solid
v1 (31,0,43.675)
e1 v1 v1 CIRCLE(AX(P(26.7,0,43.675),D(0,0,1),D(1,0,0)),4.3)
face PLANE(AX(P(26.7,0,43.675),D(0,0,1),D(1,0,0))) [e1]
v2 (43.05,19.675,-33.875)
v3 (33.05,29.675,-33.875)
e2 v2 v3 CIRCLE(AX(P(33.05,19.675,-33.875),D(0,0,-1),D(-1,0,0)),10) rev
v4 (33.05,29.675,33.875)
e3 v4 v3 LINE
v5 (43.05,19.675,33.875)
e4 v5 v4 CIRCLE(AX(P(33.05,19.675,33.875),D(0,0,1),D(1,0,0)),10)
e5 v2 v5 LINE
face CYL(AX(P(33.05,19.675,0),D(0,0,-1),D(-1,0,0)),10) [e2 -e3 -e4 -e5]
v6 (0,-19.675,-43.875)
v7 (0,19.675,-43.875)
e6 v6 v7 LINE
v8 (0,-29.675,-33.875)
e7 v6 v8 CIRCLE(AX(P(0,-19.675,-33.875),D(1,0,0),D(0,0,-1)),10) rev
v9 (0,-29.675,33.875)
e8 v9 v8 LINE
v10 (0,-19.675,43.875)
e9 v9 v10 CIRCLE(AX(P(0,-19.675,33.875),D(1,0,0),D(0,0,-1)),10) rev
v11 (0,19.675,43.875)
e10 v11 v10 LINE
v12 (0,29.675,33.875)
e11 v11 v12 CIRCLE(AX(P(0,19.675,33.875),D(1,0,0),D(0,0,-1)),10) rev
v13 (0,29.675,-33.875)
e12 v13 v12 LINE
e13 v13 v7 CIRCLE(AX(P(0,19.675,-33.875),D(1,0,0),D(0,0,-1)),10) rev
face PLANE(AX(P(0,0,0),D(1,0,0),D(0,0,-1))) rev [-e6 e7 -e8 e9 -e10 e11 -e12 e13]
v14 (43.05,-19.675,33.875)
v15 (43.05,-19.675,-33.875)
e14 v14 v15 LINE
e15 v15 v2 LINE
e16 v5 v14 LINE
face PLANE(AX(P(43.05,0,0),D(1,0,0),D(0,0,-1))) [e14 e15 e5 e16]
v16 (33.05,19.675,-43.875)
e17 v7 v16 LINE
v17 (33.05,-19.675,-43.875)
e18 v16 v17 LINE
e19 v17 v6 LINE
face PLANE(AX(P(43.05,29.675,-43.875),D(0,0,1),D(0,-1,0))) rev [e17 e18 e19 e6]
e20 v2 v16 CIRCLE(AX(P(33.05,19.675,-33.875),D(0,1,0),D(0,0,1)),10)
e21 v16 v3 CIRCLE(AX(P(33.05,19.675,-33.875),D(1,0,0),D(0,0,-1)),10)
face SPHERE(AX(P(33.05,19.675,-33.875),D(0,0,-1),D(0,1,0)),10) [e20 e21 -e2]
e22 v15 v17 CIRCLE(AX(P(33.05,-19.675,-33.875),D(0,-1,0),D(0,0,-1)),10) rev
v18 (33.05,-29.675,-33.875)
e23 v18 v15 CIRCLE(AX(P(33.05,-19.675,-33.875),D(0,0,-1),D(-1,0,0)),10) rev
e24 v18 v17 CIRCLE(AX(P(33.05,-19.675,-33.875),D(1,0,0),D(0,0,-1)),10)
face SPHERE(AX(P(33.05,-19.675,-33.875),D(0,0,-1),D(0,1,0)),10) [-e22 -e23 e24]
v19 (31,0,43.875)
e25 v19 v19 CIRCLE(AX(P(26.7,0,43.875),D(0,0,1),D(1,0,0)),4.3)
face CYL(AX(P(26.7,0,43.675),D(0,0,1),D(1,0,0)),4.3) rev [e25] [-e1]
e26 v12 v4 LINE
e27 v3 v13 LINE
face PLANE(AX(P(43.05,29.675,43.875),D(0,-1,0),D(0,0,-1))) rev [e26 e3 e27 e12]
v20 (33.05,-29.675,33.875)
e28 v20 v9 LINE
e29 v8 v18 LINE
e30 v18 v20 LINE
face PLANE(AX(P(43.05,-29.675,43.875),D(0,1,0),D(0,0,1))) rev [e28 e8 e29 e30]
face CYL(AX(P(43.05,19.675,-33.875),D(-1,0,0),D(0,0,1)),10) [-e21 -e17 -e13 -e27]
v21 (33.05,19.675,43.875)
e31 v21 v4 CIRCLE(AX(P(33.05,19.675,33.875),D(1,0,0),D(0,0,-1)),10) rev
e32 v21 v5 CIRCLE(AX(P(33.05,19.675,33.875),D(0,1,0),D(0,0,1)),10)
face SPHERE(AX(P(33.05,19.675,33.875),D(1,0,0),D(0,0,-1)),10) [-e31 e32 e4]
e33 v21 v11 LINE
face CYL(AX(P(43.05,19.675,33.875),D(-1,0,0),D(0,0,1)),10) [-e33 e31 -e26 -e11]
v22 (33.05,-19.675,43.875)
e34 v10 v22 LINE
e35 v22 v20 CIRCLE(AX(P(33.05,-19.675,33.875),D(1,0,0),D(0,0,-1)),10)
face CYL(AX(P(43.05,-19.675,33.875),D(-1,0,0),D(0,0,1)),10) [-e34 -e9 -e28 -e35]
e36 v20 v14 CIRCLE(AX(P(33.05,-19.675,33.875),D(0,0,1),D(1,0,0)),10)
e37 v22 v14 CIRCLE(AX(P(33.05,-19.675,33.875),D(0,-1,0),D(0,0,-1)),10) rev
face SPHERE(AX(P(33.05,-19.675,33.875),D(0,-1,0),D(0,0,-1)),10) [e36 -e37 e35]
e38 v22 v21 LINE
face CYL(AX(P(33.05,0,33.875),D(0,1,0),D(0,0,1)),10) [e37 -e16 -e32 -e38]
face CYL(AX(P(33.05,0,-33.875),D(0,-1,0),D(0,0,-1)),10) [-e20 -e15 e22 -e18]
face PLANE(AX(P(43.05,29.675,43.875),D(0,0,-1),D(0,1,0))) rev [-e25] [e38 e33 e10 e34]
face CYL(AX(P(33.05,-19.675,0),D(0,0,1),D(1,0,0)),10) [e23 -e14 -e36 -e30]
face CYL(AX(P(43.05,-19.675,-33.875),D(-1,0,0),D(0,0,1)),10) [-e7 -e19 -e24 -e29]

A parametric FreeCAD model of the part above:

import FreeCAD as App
import Part
import Sketcher
from FreeCAD import Vector


def edges_at(feature, points):
    """Names of the edges that pass closest to the given points."""
    edges = feature.Shape.Edges
    near = lambda p: min(range(len(edges)), key=lambda i: edges[i].distToShape(Part.Vertex(*p))[0])
    return sorted({f"Edge{near(p) + 1}" for p in points})


def add_polygon(sketch, points):
    """Adds a closed chain of lines whose ends are joined by coincident constraints."""
    first, n = sketch.GeometryCount, len(points)
    for a, b in zip(points, points[1:] + points[:1]):
        sketch.addGeometry(Part.LineSegment(App.Vector(*a, 0), App.Vector(*b, 0)), False)
    for i in range(n):
        sketch.addConstraint(Sketcher.Constraint("Coincident", first + i, 2, first + (i + 1) % n, 1))

doc = App.newDocument("Part")
body = doc.addObject("PartDesign::Body", "Body")

sketch1 = body.newObject("Sketcher::SketchObject", "Sketch")
sketch1.AttachmentSupport = (doc.getObject("YZ_Plane"), [""])
sketch1.MapMode = "FlatFace"
add_polygon(sketch1, [(30, 44), (-30, 44), (-30, -44), (30, -44)])
sketch1.addConstraint([
    Sketcher.Constraint("Horizontal", 0),
    Sketcher.Constraint("Vertical", 1),
    Sketcher.Constraint("Horizontal", 2),
    Sketcher.Constraint("Vertical", 3),
    Sketcher.Constraint("Symmetric", 0, 2, 2, 2, -1, 1),
    Sketcher.Constraint("DistanceX", 0, 2, 0, 1, 59.35),
    Sketcher.Constraint("DistanceY", 1, 2, 1, 1, 87.75),
])
pad1 = body.newObject("PartDesign::Pad", "Pad")
pad1.Profile = sketch1
pad1.Length = 43.05
doc.recompute()

fillet = body.newObject("PartDesign::Fillet", "Fillet")
fillet.Base = (pad1, edges_at(pad1, [
    (43.05, 0, 43.875),
    (43.05, -29.675, 0),
    (43.05, 0, -43.875),
    (21.525, -29.675, -43.875),
    (21.525, -29.675, 43.875),
    (21.525, 29.675, 43.875),
    (21.525, 29.675, -43.875),
    (43.05, 29.675, 0),
]))
fillet.Radius = 10

sketch2 = body.newObject("Sketcher::SketchObject", "Sketch001")
sketch2.AttachmentSupport = (doc.getObject("XY_Plane"), [""])
sketch2.MapMode = "FlatFace"
sketch2.AttachmentOffset = App.Placement(Vector(0, 0, 43.875), App.Rotation())
sketch2.addGeometry(Part.Circle(Vector(26.7, 0, 0), Vector(0, 0, 1), 4.3), False)
sketch2.addConstraint([
    Sketcher.Constraint("PointOnObject", 0, 3, -1),
    Sketcher.Constraint("Diameter", 0, 8.6),
    Sketcher.Constraint("DistanceX", -1, 1, 0, 3, 26.7),
])
pocket1 = body.newObject("PartDesign::Pocket", "Pocket")
pocket1.Profile = sketch2
pocket1.Length = 0.2

doc.recompute()
